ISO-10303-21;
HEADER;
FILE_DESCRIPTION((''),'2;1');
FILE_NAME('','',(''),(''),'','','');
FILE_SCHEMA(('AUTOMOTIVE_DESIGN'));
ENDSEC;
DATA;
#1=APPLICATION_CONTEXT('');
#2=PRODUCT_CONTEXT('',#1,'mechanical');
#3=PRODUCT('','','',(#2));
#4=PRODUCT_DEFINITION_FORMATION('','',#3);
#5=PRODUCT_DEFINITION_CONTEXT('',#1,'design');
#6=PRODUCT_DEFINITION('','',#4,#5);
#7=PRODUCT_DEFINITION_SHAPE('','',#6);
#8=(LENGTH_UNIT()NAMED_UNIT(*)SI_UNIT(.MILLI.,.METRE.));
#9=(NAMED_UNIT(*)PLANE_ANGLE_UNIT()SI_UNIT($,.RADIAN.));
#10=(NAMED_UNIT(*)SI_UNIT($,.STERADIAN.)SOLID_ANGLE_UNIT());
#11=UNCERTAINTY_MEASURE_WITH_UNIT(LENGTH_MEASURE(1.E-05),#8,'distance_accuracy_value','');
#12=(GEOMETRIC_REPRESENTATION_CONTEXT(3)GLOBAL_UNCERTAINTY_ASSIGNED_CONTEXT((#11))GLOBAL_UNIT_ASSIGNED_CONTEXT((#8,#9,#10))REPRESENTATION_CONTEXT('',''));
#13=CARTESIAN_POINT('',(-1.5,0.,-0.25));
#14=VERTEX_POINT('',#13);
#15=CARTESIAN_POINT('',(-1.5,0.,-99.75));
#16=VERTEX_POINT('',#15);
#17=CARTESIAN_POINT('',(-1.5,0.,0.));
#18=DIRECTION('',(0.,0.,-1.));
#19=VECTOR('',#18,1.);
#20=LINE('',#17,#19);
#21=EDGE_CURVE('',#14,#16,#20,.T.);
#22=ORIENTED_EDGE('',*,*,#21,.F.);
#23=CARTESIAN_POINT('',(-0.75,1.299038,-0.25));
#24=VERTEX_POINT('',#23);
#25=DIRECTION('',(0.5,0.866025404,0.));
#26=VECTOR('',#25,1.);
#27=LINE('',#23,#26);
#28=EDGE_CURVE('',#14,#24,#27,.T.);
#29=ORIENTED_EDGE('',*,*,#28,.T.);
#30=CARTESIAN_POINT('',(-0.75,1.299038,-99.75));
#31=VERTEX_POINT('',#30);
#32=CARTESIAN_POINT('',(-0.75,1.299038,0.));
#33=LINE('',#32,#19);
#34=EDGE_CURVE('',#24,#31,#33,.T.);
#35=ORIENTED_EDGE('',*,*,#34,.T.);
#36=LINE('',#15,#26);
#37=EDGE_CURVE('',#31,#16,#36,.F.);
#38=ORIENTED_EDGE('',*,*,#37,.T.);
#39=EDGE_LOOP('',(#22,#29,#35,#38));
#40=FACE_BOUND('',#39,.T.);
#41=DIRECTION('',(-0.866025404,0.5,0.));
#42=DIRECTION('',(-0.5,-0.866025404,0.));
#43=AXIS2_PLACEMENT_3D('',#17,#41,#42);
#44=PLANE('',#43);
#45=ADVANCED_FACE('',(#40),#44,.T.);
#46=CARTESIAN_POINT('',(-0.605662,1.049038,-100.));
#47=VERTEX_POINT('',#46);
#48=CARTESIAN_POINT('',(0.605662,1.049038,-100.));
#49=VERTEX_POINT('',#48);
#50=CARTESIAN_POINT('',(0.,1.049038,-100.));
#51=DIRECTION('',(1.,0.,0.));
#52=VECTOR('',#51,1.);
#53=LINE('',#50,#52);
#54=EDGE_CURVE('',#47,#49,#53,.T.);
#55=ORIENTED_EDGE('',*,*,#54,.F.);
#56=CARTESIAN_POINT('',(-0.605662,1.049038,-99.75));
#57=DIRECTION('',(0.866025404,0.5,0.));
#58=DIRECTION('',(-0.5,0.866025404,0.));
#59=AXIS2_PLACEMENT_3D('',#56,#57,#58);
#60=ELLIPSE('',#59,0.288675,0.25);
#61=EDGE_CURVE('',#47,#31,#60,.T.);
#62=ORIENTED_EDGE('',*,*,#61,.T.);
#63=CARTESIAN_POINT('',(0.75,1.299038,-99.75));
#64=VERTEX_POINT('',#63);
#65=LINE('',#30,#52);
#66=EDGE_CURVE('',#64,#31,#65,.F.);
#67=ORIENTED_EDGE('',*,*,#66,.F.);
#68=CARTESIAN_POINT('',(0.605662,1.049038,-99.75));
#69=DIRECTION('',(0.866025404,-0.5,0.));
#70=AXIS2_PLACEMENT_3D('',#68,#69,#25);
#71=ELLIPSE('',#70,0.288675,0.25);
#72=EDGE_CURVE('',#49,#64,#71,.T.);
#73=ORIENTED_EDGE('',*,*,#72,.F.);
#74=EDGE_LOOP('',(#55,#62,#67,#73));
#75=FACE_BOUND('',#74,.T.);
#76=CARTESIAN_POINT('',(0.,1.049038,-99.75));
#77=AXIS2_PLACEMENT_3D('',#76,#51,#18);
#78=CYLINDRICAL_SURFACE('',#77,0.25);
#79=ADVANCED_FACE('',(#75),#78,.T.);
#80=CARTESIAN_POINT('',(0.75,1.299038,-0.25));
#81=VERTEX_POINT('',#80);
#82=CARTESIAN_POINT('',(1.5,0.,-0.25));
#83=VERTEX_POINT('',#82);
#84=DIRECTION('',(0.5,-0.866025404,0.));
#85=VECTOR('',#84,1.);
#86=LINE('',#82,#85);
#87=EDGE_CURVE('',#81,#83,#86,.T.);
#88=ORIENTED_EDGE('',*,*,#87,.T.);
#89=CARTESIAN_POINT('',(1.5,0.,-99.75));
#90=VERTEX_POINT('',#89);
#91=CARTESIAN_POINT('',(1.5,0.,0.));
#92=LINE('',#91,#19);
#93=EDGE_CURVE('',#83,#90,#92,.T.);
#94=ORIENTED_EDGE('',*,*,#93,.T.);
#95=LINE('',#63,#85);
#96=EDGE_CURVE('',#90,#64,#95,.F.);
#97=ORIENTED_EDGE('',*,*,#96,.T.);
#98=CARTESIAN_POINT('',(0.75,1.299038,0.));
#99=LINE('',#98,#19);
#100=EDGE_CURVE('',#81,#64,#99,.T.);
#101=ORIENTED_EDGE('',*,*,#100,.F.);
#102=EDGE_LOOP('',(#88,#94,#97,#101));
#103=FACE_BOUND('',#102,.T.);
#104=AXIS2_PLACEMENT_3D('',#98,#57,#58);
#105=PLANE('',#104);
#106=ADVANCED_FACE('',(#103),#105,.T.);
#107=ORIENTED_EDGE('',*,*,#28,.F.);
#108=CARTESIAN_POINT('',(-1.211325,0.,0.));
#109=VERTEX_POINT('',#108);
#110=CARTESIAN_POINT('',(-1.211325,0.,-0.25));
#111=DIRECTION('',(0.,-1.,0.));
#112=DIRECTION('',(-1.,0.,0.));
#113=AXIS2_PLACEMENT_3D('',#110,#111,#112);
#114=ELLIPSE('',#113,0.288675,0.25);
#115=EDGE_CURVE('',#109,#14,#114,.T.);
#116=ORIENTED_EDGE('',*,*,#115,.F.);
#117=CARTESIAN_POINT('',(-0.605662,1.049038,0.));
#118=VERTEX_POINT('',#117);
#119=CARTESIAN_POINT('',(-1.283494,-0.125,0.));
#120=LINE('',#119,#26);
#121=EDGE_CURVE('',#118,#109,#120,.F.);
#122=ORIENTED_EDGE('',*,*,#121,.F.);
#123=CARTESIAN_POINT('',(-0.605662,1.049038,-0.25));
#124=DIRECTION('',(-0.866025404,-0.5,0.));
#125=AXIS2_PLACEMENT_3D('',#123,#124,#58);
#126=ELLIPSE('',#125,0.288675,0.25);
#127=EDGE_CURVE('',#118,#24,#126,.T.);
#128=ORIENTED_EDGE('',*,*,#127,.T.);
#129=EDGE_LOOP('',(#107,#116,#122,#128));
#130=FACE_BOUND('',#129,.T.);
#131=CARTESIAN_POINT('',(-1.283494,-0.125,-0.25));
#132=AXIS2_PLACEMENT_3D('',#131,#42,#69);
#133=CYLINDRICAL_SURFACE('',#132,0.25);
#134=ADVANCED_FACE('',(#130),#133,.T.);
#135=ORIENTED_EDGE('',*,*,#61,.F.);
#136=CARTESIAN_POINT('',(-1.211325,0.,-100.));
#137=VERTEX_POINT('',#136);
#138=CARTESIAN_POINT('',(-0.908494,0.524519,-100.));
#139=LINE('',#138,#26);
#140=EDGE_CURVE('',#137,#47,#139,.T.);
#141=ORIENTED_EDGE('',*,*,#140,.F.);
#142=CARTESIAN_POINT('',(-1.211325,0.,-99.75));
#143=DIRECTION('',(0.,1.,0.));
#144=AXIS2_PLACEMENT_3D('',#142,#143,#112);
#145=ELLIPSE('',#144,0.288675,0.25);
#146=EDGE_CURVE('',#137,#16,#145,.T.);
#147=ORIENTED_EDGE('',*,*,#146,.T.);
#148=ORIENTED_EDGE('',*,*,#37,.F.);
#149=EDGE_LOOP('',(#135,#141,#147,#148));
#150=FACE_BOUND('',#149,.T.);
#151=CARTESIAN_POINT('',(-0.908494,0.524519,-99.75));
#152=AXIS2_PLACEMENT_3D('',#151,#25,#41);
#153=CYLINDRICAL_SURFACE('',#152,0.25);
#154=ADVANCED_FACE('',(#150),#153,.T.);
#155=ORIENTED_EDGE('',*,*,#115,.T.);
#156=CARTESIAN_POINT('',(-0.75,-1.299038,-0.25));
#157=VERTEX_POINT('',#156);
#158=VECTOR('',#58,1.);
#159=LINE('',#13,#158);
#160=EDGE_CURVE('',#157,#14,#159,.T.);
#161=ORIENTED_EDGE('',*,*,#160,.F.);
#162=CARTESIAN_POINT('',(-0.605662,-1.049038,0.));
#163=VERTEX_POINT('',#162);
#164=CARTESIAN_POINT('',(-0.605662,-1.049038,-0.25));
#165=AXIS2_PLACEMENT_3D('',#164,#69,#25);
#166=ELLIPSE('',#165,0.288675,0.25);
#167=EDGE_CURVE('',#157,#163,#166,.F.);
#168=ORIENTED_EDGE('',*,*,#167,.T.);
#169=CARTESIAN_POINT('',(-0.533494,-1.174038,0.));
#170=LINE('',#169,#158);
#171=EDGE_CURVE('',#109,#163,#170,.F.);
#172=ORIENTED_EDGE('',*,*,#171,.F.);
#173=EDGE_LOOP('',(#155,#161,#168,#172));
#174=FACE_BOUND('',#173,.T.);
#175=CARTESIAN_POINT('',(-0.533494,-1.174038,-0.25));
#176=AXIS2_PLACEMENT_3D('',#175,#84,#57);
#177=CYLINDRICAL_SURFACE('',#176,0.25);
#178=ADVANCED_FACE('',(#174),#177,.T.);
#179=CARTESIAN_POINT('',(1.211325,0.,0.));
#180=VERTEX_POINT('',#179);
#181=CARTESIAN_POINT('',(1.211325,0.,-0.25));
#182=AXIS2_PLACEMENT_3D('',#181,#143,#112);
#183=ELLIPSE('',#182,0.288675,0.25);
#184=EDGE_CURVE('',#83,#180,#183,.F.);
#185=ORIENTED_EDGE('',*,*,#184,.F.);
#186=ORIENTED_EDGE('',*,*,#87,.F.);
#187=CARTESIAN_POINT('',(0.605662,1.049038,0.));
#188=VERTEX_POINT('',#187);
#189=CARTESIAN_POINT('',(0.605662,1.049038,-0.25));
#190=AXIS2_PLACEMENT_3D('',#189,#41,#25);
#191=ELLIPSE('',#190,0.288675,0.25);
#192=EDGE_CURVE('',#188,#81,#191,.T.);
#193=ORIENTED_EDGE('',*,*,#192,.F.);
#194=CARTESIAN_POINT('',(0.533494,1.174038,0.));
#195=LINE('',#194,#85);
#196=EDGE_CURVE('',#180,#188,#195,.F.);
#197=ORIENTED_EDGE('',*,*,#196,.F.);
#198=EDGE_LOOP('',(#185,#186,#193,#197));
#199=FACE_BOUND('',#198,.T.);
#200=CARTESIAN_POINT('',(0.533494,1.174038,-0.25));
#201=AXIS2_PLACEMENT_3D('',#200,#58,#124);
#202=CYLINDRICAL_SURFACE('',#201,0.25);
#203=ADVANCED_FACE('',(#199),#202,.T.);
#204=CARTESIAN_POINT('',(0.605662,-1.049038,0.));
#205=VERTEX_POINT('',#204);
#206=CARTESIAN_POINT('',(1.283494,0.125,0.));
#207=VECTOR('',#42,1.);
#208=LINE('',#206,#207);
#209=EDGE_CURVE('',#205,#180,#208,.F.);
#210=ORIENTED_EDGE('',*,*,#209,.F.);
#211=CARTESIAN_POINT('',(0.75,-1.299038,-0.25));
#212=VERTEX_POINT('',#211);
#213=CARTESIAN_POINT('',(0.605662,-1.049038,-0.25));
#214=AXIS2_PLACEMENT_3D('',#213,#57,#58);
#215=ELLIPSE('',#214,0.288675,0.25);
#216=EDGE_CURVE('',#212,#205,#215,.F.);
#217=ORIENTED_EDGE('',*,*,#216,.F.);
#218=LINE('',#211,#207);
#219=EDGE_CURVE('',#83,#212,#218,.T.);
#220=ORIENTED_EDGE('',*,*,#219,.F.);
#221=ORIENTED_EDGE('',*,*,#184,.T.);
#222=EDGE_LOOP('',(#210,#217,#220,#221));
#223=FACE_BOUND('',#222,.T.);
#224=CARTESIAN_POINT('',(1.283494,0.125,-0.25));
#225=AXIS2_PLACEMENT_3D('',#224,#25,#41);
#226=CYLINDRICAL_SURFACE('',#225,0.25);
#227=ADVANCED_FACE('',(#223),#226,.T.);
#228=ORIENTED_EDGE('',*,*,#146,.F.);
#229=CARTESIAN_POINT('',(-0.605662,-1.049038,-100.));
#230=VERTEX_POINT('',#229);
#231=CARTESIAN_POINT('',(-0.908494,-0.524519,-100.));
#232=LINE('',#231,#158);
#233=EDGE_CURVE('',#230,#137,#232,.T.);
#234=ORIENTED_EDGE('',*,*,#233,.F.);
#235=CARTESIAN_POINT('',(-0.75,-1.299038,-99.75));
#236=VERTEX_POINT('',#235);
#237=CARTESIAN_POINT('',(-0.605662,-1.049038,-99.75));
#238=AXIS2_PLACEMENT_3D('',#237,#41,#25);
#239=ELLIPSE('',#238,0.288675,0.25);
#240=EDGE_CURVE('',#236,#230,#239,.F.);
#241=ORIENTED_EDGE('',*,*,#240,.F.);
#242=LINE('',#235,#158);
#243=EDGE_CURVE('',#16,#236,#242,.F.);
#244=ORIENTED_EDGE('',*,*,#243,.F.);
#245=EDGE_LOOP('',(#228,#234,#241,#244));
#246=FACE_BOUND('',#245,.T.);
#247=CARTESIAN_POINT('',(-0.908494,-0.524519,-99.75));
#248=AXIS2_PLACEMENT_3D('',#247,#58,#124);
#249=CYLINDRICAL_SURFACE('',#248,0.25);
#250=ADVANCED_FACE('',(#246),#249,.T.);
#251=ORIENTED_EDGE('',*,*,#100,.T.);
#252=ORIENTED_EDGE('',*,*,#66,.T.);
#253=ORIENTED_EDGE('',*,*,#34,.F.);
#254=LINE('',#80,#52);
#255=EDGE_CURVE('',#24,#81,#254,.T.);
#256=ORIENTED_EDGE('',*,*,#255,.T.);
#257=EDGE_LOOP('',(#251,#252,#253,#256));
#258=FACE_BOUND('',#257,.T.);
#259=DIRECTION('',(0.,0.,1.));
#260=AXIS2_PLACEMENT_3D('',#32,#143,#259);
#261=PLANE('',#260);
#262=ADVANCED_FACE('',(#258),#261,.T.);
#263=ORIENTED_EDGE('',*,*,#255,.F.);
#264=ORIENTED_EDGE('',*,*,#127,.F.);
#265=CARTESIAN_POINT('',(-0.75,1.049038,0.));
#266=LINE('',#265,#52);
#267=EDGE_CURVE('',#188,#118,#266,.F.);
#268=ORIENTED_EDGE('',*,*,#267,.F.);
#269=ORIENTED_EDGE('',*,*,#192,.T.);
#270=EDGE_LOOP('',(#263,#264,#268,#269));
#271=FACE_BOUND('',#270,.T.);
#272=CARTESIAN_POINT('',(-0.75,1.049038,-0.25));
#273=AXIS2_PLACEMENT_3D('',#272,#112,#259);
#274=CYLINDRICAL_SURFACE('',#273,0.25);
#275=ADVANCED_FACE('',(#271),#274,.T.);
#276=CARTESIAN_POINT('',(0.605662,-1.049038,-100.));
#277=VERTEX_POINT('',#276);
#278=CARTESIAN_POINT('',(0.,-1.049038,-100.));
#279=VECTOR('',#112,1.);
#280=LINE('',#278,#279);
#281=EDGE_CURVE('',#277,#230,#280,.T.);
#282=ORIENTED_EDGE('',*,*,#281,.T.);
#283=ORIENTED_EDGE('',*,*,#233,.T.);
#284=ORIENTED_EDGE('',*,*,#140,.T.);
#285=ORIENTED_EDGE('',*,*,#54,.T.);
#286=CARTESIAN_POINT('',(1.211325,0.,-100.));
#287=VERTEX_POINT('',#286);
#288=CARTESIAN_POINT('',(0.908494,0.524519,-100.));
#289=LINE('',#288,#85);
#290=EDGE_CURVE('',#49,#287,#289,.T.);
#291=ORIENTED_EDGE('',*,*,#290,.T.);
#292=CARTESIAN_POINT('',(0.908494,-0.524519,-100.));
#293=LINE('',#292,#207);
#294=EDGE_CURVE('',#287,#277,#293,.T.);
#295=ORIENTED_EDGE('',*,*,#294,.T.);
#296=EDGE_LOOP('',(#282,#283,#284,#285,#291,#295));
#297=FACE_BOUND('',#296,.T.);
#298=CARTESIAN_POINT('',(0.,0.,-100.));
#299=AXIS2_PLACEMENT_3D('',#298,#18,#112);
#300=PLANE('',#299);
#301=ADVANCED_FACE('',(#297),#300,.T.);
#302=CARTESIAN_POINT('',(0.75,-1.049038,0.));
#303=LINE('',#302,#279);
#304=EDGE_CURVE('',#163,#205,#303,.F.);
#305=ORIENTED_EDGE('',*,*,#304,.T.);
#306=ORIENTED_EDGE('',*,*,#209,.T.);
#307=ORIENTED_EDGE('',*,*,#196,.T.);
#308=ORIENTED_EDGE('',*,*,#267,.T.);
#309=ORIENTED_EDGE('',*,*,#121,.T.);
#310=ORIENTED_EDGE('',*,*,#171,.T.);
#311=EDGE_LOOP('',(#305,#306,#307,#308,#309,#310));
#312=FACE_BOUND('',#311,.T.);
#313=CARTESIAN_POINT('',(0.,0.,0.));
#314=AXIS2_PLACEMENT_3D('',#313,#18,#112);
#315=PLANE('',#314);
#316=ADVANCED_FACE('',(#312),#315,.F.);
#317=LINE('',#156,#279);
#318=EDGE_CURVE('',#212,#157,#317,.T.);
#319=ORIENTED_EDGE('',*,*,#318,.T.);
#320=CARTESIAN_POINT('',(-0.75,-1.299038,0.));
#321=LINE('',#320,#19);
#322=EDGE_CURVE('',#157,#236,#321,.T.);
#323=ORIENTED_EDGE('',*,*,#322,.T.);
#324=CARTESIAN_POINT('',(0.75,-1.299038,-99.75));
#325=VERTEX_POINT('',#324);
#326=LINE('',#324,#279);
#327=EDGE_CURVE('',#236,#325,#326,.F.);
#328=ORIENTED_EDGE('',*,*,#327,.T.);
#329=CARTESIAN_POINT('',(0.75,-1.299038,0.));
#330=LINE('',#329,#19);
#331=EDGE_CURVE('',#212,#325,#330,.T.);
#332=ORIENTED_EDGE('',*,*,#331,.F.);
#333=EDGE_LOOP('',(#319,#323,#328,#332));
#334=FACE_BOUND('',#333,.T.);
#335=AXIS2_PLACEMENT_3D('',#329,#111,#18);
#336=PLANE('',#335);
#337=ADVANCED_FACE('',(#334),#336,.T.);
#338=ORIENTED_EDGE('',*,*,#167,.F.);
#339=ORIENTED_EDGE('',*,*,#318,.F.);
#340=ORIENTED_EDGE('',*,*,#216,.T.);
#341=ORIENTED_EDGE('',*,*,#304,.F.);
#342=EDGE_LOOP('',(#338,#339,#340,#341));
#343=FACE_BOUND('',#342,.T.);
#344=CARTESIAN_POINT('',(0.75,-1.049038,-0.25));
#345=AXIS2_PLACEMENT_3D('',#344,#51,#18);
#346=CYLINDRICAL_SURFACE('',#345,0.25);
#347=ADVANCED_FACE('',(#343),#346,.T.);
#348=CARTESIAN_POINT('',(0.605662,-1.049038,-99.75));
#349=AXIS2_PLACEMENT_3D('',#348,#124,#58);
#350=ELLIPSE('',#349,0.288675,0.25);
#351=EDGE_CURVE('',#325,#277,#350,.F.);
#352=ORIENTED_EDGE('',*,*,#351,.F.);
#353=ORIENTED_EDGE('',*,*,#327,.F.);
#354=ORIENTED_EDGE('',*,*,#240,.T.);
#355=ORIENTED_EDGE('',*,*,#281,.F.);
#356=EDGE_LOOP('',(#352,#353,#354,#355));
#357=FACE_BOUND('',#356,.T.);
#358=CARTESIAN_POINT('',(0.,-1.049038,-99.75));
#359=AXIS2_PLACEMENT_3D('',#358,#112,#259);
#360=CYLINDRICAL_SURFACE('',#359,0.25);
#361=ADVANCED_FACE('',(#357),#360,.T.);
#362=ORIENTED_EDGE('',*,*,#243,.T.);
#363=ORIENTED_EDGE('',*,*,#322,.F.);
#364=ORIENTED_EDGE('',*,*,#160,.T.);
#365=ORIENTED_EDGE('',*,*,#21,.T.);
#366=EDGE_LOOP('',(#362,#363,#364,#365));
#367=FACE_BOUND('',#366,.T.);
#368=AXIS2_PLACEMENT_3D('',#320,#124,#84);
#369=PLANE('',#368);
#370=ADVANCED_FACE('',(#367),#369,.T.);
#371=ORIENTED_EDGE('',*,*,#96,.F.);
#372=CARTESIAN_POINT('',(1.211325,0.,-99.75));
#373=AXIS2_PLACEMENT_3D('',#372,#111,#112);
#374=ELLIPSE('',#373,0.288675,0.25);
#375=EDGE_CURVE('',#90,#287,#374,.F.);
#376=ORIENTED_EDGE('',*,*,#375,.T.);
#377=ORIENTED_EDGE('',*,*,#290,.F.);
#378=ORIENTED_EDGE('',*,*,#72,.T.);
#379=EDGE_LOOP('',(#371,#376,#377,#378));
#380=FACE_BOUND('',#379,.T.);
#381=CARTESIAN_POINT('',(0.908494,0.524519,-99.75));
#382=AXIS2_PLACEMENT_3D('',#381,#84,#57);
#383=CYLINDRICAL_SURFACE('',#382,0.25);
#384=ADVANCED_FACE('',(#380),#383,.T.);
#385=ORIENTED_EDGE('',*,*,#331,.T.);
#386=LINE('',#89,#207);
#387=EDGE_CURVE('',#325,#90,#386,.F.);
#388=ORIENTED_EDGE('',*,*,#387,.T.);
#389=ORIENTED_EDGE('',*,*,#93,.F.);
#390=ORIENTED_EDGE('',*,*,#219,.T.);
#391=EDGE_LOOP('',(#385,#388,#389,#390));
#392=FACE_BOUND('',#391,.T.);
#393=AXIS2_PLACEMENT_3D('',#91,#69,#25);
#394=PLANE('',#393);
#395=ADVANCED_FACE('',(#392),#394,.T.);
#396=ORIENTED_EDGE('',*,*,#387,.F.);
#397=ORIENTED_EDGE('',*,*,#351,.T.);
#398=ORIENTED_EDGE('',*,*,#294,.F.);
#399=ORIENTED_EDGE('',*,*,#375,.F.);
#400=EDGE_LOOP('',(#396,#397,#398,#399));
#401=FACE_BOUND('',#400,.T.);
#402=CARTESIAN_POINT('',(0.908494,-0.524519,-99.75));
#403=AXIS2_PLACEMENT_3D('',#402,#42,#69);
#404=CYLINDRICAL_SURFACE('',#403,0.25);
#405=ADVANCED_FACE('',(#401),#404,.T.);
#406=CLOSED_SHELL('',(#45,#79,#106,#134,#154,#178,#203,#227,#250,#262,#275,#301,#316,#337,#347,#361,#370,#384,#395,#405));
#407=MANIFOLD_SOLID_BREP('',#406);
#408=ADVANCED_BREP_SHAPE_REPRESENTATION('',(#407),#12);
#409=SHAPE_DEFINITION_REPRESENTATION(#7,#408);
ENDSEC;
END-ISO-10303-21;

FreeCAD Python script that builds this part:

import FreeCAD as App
import Part
import Sketcher
Q = App.Units.Quantity


def edges_at(feature, points):
    """Names of the edges that pass closest to the given points."""
    edges = feature.Shape.Edges
    near = lambda p: min(range(len(edges)), key=lambda i: edges[i].distToShape(Part.Vertex(*p))[0])
    return sorted({f"Edge{near(p) + 1}" for p in points})

doc = App.newDocument("Part")
params = doc.addObject("Spreadsheet::Sheet", "Params")
for row, (alias, value) in enumerate([
    ("sketch1_width", "1.5 mm"),
    ("pad1_length", "100 mm"),
    ("fillet_radius", "0.25 mm"),
], start=1):
    params.set(f"A{row}", alias)
    params.set(f"B{row}", "=" + value)
    params.setAlias(f"B{row}", alias)

body = doc.addObject("PartDesign::Body", "Body")

# Sketch on XY plane
sketch1 = body.newObject("Sketcher::SketchObject", "Sketch")
sketch1.AttachmentSupport = (doc.getObject("XY_Plane"), [""])
sketch1.MapMode = "FlatFace"
sketch1.AttachmentOffset = App.Placement(App.Vector(0, 0, -50), App.Rotation())
sketch1.addGeometry([
    Part.LineSegment(App.Vector(-0.8, -1.3, 0), App.Vector(-1.5, 0, 0)),  # 0
    Part.LineSegment(App.Vector(-1.5, 0, 0), App.Vector(-0.8, 1.3, 0)),  # 1
    Part.LineSegment(App.Vector(-0.8, 1.3, 0), App.Vector(0.8, 1.3, 0)),  # 2
    Part.LineSegment(App.Vector(0.8, 1.3, 0), App.Vector(1.5, 0, 0)),  # 3
    Part.LineSegment(App.Vector(1.5, 0, 0), App.Vector(0.8, -1.3, 0)),  # 4
    Part.LineSegment(App.Vector(0.8, -1.3, 0), App.Vector(-0.8, -1.3, 0)),  # 5
], False)
sketch1.addConstraint([
    Sketcher.Constraint("Coincident", 0, 2, 1, 1),
    Sketcher.Constraint("Coincident", 1, 2, 2, 1),
    Sketcher.Constraint("Coincident", 2, 2, 3, 1),
    Sketcher.Constraint("Coincident", 3, 2, 4, 1),
    Sketcher.Constraint("Coincident", 4, 2, 5, 1),
    Sketcher.Constraint("Coincident", 5, 2, 0, 1),
    Sketcher.Constraint("Horizontal", 2),
    Sketcher.Constraint("Horizontal", 5),
    Sketcher.Constraint("Symmetric", 0, 2, 3, 2, -1, 1),
    Sketcher.Constraint("Symmetric", 1, 2, 4, 2, -1, 1),
    Sketcher.Constraint("PointOnObject", 0, 2, -1),
    Sketcher.Constraint("Parallel", 0, 3),
    Sketcher.Constraint("Vertical", 2, 2, 4, 2),
    Sketcher.Constraint("Angle", 0, Q("120 deg")),
    Sketcher.Constraint("DistanceX", 2, 1, 2, 2, 1.5),
    Sketcher.Constraint("DistanceX", 0, 2, 3, 2, 3.0),
])
sketch1.setExpression("Constraints[14]", "Params.sketch1_width")
pad1 = body.newObject("PartDesign::Pad", "Pad")
pad1.Profile = sketch1
pad1.setExpression("Length", "Params.pad1_length")
pad1.Midplane = True
doc.recompute()

fillet = body.newObject("PartDesign::Fillet", "Fillet")
fillet.Base = (pad1, edges_at(pad1, [
    (-1.125, 0.65, 0),
    (0, 1.299, 0),
    (1.125, 0.65, 0),
    (1.125, -0.65, 0),
    (0, -1.299, 0),
    (1.125, -0.65, -100),
    (1.125, 0.65, -100),
    (0, 1.299, -100),
    (-1.125, -0.65, 0),
    (-1.125, 0.65, -100),
    (-1.125, -0.65, -100),
    (0, -1.299, -100),
]))
fillet.setExpression("Radius", "Params.fillet_radius")

doc.recompute()
